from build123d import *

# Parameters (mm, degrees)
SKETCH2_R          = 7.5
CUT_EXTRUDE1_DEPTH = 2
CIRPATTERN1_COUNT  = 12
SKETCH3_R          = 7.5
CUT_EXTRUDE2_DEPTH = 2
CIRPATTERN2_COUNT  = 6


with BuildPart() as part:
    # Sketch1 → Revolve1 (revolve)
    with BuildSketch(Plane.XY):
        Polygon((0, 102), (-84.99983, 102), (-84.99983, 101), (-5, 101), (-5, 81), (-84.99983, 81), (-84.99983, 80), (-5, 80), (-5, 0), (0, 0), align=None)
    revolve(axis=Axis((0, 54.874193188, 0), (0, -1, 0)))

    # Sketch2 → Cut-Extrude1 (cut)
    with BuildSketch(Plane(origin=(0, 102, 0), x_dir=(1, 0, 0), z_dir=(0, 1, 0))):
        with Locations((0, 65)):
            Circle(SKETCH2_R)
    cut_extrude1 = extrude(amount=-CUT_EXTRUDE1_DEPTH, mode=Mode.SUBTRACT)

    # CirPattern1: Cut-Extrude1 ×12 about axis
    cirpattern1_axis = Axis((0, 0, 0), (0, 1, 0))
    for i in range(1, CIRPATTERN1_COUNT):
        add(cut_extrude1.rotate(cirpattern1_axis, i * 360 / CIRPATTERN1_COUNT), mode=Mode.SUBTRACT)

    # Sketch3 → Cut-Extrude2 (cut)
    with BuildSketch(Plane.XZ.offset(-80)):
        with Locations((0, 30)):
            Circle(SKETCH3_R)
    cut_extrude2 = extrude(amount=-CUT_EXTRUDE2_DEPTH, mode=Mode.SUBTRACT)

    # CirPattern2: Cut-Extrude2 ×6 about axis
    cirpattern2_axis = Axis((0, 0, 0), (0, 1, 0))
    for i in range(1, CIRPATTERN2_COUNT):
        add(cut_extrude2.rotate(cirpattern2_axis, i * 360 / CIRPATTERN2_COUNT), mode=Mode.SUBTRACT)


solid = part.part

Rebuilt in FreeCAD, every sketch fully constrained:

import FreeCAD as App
import Part
import Sketcher

doc = App.newDocument("Part")
body = doc.addObject("PartDesign::Body", "Body")

sketch1 = body.newObject("Sketcher::SketchObject", "Sketch")
sketch1.AttachmentSupport = (doc.getObject("XY_Plane"), [""])
sketch1.MapMode = "FlatFace"
sketch1.addGeometry(Part.LineSegment(App.Vector(0, 102, 0), App.Vector(-85, 102, 0)), False)
sketch1.addGeometry(Part.LineSegment(App.Vector(-85, 102, 0), App.Vector(-85, 101, 0)), False)
sketch1.addGeometry(Part.LineSegment(App.Vector(-85, 101, 0), App.Vector(-5, 101, 0)), False)
sketch1.addGeometry(Part.LineSegment(App.Vector(-5, 101, 0), App.Vector(-5, 81, 0)), False)
sketch1.addGeometry(Part.LineSegment(App.Vector(-5, 81, 0), App.Vector(-85, 81, 0)), False)
sketch1.addGeometry(Part.LineSegment(App.Vector(-85, 81, 0), App.Vector(-85, 80, 0)), False)
sketch1.addGeometry(Part.LineSegment(App.Vector(-85, 80, 0), App.Vector(-5, 80, 0)), False)
sketch1.addGeometry(Part.LineSegment(App.Vector(-5, 80, 0), App.Vector(-5, 0, 0)), False)
sketch1.addGeometry(Part.LineSegment(App.Vector(-5, 0, 0), App.Vector(0, 0, 0)), False)
sketch1.addGeometry(Part.LineSegment(App.Vector(0, 0, 0), App.Vector(0, 102, 0)), False)
sketch1.addConstraint(Sketcher.Constraint("Coincident", 0, 2, 1, 1))
sketch1.addConstraint(Sketcher.Constraint("Coincident", 1, 2, 2, 1))
sketch1.addConstraint(Sketcher.Constraint("Coincident", 2, 2, 3, 1))
sketch1.addConstraint(Sketcher.Constraint("Coincident", 3, 2, 4, 1))
sketch1.addConstraint(Sketcher.Constraint("Coincident", 4, 2, 5, 1))
sketch1.addConstraint(Sketcher.Constraint("Coincident", 5, 2, 6, 1))
sketch1.addConstraint(Sketcher.Constraint("Coincident", 6, 2, 7, 1))
sketch1.addConstraint(Sketcher.Constraint("Coincident", 7, 2, 8, 1))
sketch1.addConstraint(Sketcher.Constraint("Coincident", 8, 2, 9, 1))
sketch1.addConstraint(Sketcher.Constraint("Coincident", 9, 2, 0, 1))
sketch1.addConstraint(Sketcher.Constraint("Horizontal", 0))
sketch1.addConstraint(Sketcher.Constraint("Vertical", 1))
sketch1.addConstraint(Sketcher.Constraint("Horizontal", 2))
sketch1.addConstraint(Sketcher.Constraint("Vertical", 3))
sketch1.addConstraint(Sketcher.Constraint("Horizontal", 4))
sketch1.addConstraint(Sketcher.Constraint("Vertical", 5))
sketch1.addConstraint(Sketcher.Constraint("Horizontal", 6))
sketch1.addConstraint(Sketcher.Constraint("Vertical", 7))
sketch1.addConstraint(Sketcher.Constraint("Horizontal", 8))
sketch1.addConstraint(Sketcher.Constraint("Vertical", 9))
sketch1.addConstraint(Sketcher.Constraint("Coincident", 8, 2, -1, 1))
sketch1.addConstraint(Sketcher.Constraint("Vertical", 1, 2, 4, 2))
sketch1.addConstraint(Sketcher.Constraint("Vertical", 3, 2, 6, 2))
sketch1.addConstraint(Sketcher.Constraint("Equal", 1, 5))
sketch1.addConstraint(Sketcher.Constraint("DistanceX", 8, 1, 8, 2, 5.0))
sketch1.addConstraint(Sketcher.Constraint("DistanceY", 1, 2, 1, 1, 1.0))
sketch1.addConstraint(Sketcher.Constraint("DistanceY", 3, 2, 3, 1, 20.0))
sketch1.addConstraint(Sketcher.Constraint("DistanceY", 7, 2, 7, 1, 80.0))
sketch1.addConstraint(Sketcher.Constraint("DistanceX", 0, 2, 0, 1, 84.99983))
revolution = body.newObject("PartDesign::Revolution", "Revolution")
revolution.Profile = sketch1
revolution.ReferenceAxis = (sketch1, ["V_Axis"])
revolution.Angle = 360

sketch2 = body.newObject("Sketcher::SketchObject", "Sketch001")
sketch2.AttachmentSupport = (doc.getObject("XZ_Plane"), [""])
sketch2.MapMode = "FlatFace"
sketch2.AttachmentOffset = App.Placement(App.Vector(0, 0, -102), App.Rotation())
sketch2.addGeometry(Part.Circle(App.Vector(0, -65, 0), App.Vector(0, 0, 1), 8), False)
sketch2.addConstraint(Sketcher.Constraint("PointOnObject", 0, 3, -2))
sketch2.addConstraint(Sketcher.Constraint("Diameter", 0, 15.0))
sketch2.addConstraint(Sketcher.Constraint("DistanceY", 0, 3, -1, 1, 65.0))
pocket1 = body.newObject("PartDesign::Pocket", "Pocket")
pocket1.Profile = sketch2
pocket1.Length = 2
pocket1.Reversed = True
doc.recompute()

polarpattern = body.newObject("PartDesign::PolarPattern", "PolarPattern")
polarpattern.Originals = [pocket1]
polarpattern.Axis = (doc.getObject("Y_Axis"), [""])
polarpattern.Angle = 360
polarpattern.Occurrences = 12
body.Tip = polarpattern

sketch3 = body.newObject("Sketcher::SketchObject", "Sketch002")
sketch3.AttachmentSupport = (doc.getObject("XZ_Plane"), [""])
sketch3.MapMode = "FlatFace"
sketch3.AttachmentOffset = App.Placement(App.Vector(0, 0, -80), App.Rotation())
sketch3.addGeometry(Part.Circle(App.Vector(0, 30, 0), App.Vector(0, 0, 1), 8), False)
sketch3.addConstraint(Sketcher.Constraint("PointOnObject", 0, 3, -2))
sketch3.addConstraint(Sketcher.Constraint("Diameter", 0, 15.0))
sketch3.addConstraint(Sketcher.Constraint("DistanceY", -1, 1, 0, 3, 30.0))
pocket2 = body.newObject("PartDesign::Pocket", "Pocket001")
pocket2.Profile = sketch3
pocket2.Length = 2
doc.recompute()

polarpattern2 = body.newObject("PartDesign::PolarPattern", "PolarPattern001")
polarpattern2.Originals = [pocket2]
polarpattern2.Axis = (doc.getObject("Y_Axis"), [""])
polarpattern2.Angle = 360
polarpattern2.Occurrences = 6
body.Tip = polarpattern2

doc.recompute()
